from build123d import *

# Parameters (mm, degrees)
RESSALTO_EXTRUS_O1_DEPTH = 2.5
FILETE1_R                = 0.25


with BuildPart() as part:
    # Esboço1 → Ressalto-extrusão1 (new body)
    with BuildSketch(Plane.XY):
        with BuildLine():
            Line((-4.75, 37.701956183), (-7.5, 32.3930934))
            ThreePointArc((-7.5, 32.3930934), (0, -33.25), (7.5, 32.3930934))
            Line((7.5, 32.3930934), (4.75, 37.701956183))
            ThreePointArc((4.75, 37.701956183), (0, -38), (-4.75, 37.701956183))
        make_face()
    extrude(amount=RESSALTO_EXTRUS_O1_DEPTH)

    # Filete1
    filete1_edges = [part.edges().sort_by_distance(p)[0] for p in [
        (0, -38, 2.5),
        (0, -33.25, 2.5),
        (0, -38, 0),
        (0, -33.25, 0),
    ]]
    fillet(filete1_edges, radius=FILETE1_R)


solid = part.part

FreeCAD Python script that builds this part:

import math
import FreeCAD as App
import Part
import Sketcher
from FreeCAD import Vector


def edges_at(feature, points):
    """Names of the edges that pass closest to the given points."""
    edges = feature.Shape.Edges
    near = lambda p: min(range(len(edges)), key=lambda i: edges[i].distToShape(Part.Vertex(*p))[0])
    return sorted({f"Edge{near(p) + 1}" for p in points})

doc = App.newDocument("Part")
params = doc.addObject("Spreadsheet::Sheet", "Params")
for row, (alias, value) in enumerate([
    ("sketch1_radius", "38 mm"),
    ("sketch1_radius2", "33.25 mm"),
    ("pad1_length", "2.5 mm"),
    ("fillet_radius", "0.25 mm"),
], start=1):
    params.set(f"A{row}", alias)
    params.set(f"B{row}", "=" + value)
    params.setAlias(f"B{row}", alias)

body = doc.addObject("PartDesign::Body", "Body")

sketch1 = body.newObject("Sketcher::SketchObject", "Sketch")
sketch1.AttachmentSupport = (doc.getObject("XY_Plane"), [""])
sketch1.MapMode = "FlatFace"
sketch1.addGeometry([
    Part.LineSegment(Vector(-8, 32, 0), Vector(-5, 38, 0)),
    Part.ArcOfCircle(Part.Circle(Vector(0, 0, 0), Vector(0, 0, 1), 38), math.radians(97), math.radians(443)),
    Part.LineSegment(Vector(5, 38, 0), Vector(8, 32, 0)),
    Part.ArcOfCircle(Part.Circle(Vector(0, 0, 0), Vector(0, 0, 1), 33), math.radians(103), math.radians(437)),
], False)
sketch1.addConstraint([
    Sketcher.Constraint("Coincident", 0, 2, 1, 1),
    Sketcher.Constraint("Coincident", 1, 2, 2, 1),
    Sketcher.Constraint("Coincident", 2, 2, 3, 2),
    Sketcher.Constraint("Coincident", 3, 1, 0, 1),
    Sketcher.Constraint("Coincident", 1, 3, -1, 1),
    Sketcher.Constraint("Coincident", 3, 3, -1, 1),
    Sketcher.Constraint("Horizontal", 0, 2, 1, 2),
    Sketcher.Constraint("Horizontal", 2, 2, 3, 1),
    Sketcher.Constraint("Radius", 1, 38.0),
    Sketcher.Constraint("Radius", 3, 33.25),
    Sketcher.Constraint("DistanceX", 3, 1, 2, 2, 15.0),
    Sketcher.Constraint("DistanceX", 0, 2, 1, 2, 9.5),
])
sketch1.setExpression("Constraints[8]", "Params.sketch1_radius")
sketch1.setExpression("Constraints[9]", "Params.sketch1_radius2")
pad1 = body.newObject("PartDesign::Pad", "Pad")
pad1.Profile = sketch1
pad1.setExpression("Length", "Params.pad1_length")
doc.recompute()

fillet = body.newObject("PartDesign::Fillet", "Fillet")
fillet.Base = (pad1, edges_at(pad1, [
    (0, -38, 2.5),
    (0, -33.25, 2.5),
    (0, -38, 0),
    (0, -33.25, 0),
]))
fillet.setExpression("Radius", "Params.fillet_radius")

doc.recompute()
